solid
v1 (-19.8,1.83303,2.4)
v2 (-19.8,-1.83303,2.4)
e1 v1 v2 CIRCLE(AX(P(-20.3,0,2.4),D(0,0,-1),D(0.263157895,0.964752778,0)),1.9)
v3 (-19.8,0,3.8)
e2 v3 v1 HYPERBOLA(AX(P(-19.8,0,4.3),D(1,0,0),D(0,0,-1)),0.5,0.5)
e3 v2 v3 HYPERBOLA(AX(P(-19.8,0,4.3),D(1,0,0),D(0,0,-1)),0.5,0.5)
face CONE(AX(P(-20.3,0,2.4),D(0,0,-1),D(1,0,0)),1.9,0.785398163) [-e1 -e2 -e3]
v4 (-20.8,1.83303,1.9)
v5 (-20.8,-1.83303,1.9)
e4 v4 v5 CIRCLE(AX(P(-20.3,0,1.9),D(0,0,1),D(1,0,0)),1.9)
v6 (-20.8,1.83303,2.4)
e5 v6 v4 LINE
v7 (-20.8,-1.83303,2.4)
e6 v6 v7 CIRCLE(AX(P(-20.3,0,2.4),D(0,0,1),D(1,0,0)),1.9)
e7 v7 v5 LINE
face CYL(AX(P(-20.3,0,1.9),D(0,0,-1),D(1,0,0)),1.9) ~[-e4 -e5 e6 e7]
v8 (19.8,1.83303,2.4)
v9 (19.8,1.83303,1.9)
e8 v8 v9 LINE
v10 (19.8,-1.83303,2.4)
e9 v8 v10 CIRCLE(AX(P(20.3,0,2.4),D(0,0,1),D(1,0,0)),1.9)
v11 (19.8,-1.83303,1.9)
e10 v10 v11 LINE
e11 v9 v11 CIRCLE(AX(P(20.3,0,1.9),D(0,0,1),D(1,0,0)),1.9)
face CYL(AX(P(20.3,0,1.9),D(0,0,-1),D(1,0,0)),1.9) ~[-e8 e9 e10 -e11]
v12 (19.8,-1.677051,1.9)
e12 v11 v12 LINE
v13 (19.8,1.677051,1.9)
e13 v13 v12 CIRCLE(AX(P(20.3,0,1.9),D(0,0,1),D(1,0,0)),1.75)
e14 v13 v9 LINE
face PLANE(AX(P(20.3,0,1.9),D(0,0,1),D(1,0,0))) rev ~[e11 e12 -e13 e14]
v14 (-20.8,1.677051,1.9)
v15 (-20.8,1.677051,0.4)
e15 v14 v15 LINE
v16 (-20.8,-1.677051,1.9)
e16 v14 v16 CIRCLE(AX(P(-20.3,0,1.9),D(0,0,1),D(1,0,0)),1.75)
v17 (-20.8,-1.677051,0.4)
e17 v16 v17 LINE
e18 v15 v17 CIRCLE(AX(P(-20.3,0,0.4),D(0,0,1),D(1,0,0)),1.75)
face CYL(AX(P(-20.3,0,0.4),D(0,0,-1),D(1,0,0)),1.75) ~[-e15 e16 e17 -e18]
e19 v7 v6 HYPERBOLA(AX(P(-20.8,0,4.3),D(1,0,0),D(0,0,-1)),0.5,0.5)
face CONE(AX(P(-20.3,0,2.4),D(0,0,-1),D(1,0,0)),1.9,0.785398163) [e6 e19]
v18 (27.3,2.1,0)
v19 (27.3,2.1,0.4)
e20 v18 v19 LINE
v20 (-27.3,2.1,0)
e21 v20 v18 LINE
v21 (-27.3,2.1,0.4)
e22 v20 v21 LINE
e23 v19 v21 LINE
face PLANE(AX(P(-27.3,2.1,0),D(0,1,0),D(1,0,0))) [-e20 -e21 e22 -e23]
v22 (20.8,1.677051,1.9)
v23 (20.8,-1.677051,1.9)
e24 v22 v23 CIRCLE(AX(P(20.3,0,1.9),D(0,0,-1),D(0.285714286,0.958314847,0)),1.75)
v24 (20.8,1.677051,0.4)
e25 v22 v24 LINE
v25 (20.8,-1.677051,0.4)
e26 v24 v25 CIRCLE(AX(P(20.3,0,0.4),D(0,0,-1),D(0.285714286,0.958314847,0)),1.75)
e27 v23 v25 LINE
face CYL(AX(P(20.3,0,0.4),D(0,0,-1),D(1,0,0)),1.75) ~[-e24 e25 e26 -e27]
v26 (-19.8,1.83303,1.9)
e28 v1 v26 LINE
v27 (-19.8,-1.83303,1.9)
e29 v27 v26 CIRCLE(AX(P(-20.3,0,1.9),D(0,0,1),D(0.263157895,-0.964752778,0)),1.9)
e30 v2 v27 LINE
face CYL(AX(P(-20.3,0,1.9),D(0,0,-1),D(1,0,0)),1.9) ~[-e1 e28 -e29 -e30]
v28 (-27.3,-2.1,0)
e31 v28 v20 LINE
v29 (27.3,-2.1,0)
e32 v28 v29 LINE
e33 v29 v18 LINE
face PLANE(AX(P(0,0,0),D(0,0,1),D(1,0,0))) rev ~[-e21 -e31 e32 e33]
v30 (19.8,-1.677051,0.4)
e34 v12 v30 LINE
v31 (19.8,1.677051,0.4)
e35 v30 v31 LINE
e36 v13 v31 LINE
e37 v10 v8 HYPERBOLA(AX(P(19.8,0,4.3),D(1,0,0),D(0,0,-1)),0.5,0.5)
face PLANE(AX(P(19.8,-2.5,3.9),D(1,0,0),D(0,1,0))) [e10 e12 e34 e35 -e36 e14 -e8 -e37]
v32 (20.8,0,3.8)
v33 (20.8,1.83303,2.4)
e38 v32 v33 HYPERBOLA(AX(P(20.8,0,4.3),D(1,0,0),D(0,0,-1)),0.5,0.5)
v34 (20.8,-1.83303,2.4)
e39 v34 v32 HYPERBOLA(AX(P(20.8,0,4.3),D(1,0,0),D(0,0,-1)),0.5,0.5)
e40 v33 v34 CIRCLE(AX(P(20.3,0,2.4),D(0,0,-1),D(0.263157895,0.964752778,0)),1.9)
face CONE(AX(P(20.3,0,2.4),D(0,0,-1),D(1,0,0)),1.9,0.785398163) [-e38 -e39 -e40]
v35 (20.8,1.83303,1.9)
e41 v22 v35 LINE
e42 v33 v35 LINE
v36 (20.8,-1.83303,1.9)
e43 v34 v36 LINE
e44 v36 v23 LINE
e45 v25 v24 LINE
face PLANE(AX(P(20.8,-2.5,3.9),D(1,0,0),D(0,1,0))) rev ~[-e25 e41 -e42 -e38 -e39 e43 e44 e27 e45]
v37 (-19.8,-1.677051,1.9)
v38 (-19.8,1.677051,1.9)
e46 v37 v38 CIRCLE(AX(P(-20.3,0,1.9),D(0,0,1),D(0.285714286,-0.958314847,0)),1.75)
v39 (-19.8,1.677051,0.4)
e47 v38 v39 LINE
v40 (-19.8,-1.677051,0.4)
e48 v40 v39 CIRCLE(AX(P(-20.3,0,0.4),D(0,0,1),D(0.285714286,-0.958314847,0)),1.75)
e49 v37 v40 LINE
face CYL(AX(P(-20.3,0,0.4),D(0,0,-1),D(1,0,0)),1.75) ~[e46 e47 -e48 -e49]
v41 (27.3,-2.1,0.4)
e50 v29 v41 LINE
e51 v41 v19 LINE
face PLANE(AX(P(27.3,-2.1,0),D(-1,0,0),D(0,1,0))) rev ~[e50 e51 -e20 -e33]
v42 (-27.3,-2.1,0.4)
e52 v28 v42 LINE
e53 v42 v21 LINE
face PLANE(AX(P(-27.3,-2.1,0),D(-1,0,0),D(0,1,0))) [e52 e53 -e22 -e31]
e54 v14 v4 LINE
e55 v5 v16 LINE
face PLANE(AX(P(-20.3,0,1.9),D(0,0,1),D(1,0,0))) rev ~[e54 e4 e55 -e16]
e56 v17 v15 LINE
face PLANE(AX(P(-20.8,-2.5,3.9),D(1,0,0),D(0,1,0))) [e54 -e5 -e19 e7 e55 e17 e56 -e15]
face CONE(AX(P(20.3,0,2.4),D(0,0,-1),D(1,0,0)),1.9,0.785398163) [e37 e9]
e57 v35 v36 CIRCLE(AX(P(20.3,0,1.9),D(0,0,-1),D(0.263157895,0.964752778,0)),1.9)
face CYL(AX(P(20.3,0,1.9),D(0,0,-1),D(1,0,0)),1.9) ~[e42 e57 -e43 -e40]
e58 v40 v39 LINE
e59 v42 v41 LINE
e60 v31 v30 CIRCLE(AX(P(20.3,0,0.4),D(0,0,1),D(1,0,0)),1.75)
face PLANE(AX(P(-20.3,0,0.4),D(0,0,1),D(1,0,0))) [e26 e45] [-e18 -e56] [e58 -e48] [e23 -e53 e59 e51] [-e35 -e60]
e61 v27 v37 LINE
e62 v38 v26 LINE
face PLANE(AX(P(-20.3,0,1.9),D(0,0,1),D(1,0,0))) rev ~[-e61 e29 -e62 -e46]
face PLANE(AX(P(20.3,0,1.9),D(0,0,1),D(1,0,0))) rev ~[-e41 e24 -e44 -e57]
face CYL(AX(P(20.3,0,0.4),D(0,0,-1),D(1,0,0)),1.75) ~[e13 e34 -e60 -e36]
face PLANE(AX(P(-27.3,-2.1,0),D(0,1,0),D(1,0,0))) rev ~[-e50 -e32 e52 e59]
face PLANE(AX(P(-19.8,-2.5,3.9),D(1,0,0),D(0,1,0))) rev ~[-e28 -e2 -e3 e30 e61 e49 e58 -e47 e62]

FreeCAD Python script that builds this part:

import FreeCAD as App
import Part
import Sketcher
from FreeCAD import Vector
Q = App.Units.Quantity


def edges_at(feature, points):
    """Names of the edges that pass closest to the given points."""
    edges = feature.Shape.Edges
    near = lambda p: min(range(len(edges)), key=lambda i: edges[i].distToShape(Part.Vertex(*p))[0])
    return sorted({f"Edge{near(p) + 1}" for p in points})

doc = App.newDocument("Part")
body = doc.addObject("PartDesign::Body", "Body")

sketch1 = body.newObject("Sketcher::SketchObject", "Sketch")
sketch1.AttachmentSupport = (doc.getObject("XY_Plane"), [""])
sketch1.MapMode = "FlatFace"
sketch1.addGeometry([
    Part.LineSegment(Vector(-27.3, 2.1, 0), Vector(-27.3, -2.1, 0)),
    Part.LineSegment(Vector(-27.3, -2.1, 0), Vector(27.3, -2.1, 0)),
    Part.LineSegment(Vector(27.3, -2.1, 0), Vector(27.3, 2.1, 0)),
    Part.LineSegment(Vector(27.3, 2.1, 0), Vector(-27.3, 2.1, 0)),
], False)
sketch1.addConstraint([
    Sketcher.Constraint("Coincident", 0, 2, 1, 1),
    Sketcher.Constraint("Coincident", 1, 2, 2, 1),
    Sketcher.Constraint("Coincident", 2, 2, 3, 1),
    Sketcher.Constraint("Coincident", 3, 2, 0, 1),
    Sketcher.Constraint("Vertical", 0),
    Sketcher.Constraint("Horizontal", 1),
    Sketcher.Constraint("Vertical", 2),
    Sketcher.Constraint("Horizontal", 3),
    Sketcher.Constraint("Symmetric", 0, 2, 2, 2, -1, 1),
    Sketcher.Constraint("DistanceX", 1, 1, 1, 2, Q("54.6 mm")),
    Sketcher.Constraint("DistanceY", 0, 2, 0, 1, Q("4.2 mm")),
])
pad1 = body.newObject("PartDesign::Pad", "Pad")
pad1.Profile = sketch1
pad1.Length = 0.4

sketch2 = body.newObject("Sketcher::SketchObject", "Sketch001")
sketch2.AttachmentSupport = (doc.getObject("XY_Plane"), [""])
sketch2.MapMode = "FlatFace"
sketch2.AttachmentOffset = App.Placement(Vector(0, 0, 0.4), App.Rotation())
sketch2.addGeometry([
    Part.Circle(Vector(-20.3, 0, 0), Vector(0, 0, 1), 1.8),
    Part.Circle(Vector(20.3, 0, 0), Vector(0, 0, 1), 1.8),
], False)
sketch2.addConstraint([
    Sketcher.Constraint("Equal", 0, 1),
    Sketcher.Constraint("Symmetric", 0, 3, 1, 3, -1, 1),
    Sketcher.Constraint("PointOnObject", 0, 3, -1),
    Sketcher.Constraint("Diameter", 0, Q("3.5 mm")),
    Sketcher.Constraint("DistanceX", 0, 3, -1, 1, Q("20.3 mm")),
])
pad2 = body.newObject("PartDesign::Pad", "Pad001")
pad2.Profile = sketch2
pad2.Length = 1.5

sketch3 = body.newObject("Sketcher::SketchObject", "Sketch002")
sketch3.AttachmentSupport = (doc.getObject("XY_Plane"), [""])
sketch3.MapMode = "FlatFace"
sketch3.AttachmentOffset = App.Placement(Vector(0, 0, 1.9), App.Rotation())
sketch3.addGeometry([
    Part.Circle(Vector(-20.3, 0, 0), Vector(0, 0, 1), 1.9),
    Part.Circle(Vector(20.3, 0, 0), Vector(0, 0, 1), 1.9),
], False)
sketch3.addConstraint([
    Sketcher.Constraint("Equal", 0, 1),
    Sketcher.Constraint("Symmetric", 0, 3, 1, 3, -1, 1),
    Sketcher.Constraint("PointOnObject", 0, 3, -1),
    Sketcher.Constraint("Diameter", 0, Q("3.8 mm")),
    Sketcher.Constraint("DistanceX", 0, 3, -1, 1, Q("20.3 mm")),
])
pad3 = body.newObject("PartDesign::Pad", "Pad002")
pad3.Profile = sketch3
pad3.Length = 2
doc.recompute()

chamfer = body.newObject("PartDesign::Chamfer", "Chamfer")
chamfer.Base = (pad3, edges_at(pad3, [(-22.2, 0, 3.9), (18.4, 0, 3.9)]))
chamfer.Size = 1.5

sketch4 = body.newObject("Sketcher::SketchObject", "Sketch003")
sketch4.AttachmentSupport = (doc.getObject("XY_Plane"), [""])
sketch4.MapMode = "FlatFace"
sketch4.AttachmentOffset = App.Placement(Vector(0, 0, 3.9), App.Rotation())
sketch4.addGeometry([
    Part.LineSegment(Vector(-20.8, 2.5, 0), Vector(-20.8, -2.5, 0)),
    Part.LineSegment(Vector(-20.8, -2.5, 0), Vector(-19.8, -2.5, 0)),
    Part.LineSegment(Vector(-19.8, -2.5, 0), Vector(-19.8, 2.5, 0)),
    Part.LineSegment(Vector(-19.8, 2.5, 0), Vector(-20.8, 2.5, 0)),
    Part.LineSegment(Vector(19.8, 2.5, 0), Vector(19.8, -2.5, 0)),
    Part.LineSegment(Vector(19.8, -2.5, 0), Vector(20.8, -2.5, 0)),
    Part.LineSegment(Vector(20.8, -2.5, 0), Vector(20.8, 2.5, 0)),
    Part.LineSegment(Vector(20.8, 2.5, 0), Vector(19.8, 2.5, 0)),
], False)
sketch4.addConstraint([
    Sketcher.Constraint("Coincident", 0, 2, 1, 1),
    Sketcher.Constraint("Coincident", 1, 2, 2, 1),
    Sketcher.Constraint("Coincident", 2, 2, 3, 1),
    Sketcher.Constraint("Coincident", 3, 2, 0, 1),
    Sketcher.Constraint("Coincident", 4, 2, 5, 1),
    Sketcher.Constraint("Coincident", 5, 2, 6, 1),
    Sketcher.Constraint("Coincident", 6, 2, 7, 1),
    Sketcher.Constraint("Coincident", 7, 2, 4, 1),
    Sketcher.Constraint("Vertical", 0),
    Sketcher.Constraint("Horizontal", 1),
    Sketcher.Constraint("Vertical", 2),
    Sketcher.Constraint("Horizontal", 3),
    Sketcher.Constraint("Vertical", 4),
    Sketcher.Constraint("Horizontal", 5),
    Sketcher.Constraint("Vertical", 6),
    Sketcher.Constraint("Horizontal", 7),
    Sketcher.Constraint("Symmetric", 2, 2, 4, 2, -1, 1),
    Sketcher.Constraint("Symmetric", 0, 2, 6, 2, -1, 1),
    Sketcher.Constraint("Horizontal", 1, 2, 4, 2),
    Sketcher.Constraint("DistanceX", 1, 1, 1, 2, Q("1 mm")),
    Sketcher.Constraint("DistanceY", 0, 2, 0, 1, Q("5 mm")),
    Sketcher.Constraint("DistanceX", 0, 2, -1, 1, Q("20.8 mm")),
])
pocket1 = body.newObject("PartDesign::Pocket", "Pocket")
pocket1.Profile = sketch4
pocket1.Length = 3.5

doc.recompute()
